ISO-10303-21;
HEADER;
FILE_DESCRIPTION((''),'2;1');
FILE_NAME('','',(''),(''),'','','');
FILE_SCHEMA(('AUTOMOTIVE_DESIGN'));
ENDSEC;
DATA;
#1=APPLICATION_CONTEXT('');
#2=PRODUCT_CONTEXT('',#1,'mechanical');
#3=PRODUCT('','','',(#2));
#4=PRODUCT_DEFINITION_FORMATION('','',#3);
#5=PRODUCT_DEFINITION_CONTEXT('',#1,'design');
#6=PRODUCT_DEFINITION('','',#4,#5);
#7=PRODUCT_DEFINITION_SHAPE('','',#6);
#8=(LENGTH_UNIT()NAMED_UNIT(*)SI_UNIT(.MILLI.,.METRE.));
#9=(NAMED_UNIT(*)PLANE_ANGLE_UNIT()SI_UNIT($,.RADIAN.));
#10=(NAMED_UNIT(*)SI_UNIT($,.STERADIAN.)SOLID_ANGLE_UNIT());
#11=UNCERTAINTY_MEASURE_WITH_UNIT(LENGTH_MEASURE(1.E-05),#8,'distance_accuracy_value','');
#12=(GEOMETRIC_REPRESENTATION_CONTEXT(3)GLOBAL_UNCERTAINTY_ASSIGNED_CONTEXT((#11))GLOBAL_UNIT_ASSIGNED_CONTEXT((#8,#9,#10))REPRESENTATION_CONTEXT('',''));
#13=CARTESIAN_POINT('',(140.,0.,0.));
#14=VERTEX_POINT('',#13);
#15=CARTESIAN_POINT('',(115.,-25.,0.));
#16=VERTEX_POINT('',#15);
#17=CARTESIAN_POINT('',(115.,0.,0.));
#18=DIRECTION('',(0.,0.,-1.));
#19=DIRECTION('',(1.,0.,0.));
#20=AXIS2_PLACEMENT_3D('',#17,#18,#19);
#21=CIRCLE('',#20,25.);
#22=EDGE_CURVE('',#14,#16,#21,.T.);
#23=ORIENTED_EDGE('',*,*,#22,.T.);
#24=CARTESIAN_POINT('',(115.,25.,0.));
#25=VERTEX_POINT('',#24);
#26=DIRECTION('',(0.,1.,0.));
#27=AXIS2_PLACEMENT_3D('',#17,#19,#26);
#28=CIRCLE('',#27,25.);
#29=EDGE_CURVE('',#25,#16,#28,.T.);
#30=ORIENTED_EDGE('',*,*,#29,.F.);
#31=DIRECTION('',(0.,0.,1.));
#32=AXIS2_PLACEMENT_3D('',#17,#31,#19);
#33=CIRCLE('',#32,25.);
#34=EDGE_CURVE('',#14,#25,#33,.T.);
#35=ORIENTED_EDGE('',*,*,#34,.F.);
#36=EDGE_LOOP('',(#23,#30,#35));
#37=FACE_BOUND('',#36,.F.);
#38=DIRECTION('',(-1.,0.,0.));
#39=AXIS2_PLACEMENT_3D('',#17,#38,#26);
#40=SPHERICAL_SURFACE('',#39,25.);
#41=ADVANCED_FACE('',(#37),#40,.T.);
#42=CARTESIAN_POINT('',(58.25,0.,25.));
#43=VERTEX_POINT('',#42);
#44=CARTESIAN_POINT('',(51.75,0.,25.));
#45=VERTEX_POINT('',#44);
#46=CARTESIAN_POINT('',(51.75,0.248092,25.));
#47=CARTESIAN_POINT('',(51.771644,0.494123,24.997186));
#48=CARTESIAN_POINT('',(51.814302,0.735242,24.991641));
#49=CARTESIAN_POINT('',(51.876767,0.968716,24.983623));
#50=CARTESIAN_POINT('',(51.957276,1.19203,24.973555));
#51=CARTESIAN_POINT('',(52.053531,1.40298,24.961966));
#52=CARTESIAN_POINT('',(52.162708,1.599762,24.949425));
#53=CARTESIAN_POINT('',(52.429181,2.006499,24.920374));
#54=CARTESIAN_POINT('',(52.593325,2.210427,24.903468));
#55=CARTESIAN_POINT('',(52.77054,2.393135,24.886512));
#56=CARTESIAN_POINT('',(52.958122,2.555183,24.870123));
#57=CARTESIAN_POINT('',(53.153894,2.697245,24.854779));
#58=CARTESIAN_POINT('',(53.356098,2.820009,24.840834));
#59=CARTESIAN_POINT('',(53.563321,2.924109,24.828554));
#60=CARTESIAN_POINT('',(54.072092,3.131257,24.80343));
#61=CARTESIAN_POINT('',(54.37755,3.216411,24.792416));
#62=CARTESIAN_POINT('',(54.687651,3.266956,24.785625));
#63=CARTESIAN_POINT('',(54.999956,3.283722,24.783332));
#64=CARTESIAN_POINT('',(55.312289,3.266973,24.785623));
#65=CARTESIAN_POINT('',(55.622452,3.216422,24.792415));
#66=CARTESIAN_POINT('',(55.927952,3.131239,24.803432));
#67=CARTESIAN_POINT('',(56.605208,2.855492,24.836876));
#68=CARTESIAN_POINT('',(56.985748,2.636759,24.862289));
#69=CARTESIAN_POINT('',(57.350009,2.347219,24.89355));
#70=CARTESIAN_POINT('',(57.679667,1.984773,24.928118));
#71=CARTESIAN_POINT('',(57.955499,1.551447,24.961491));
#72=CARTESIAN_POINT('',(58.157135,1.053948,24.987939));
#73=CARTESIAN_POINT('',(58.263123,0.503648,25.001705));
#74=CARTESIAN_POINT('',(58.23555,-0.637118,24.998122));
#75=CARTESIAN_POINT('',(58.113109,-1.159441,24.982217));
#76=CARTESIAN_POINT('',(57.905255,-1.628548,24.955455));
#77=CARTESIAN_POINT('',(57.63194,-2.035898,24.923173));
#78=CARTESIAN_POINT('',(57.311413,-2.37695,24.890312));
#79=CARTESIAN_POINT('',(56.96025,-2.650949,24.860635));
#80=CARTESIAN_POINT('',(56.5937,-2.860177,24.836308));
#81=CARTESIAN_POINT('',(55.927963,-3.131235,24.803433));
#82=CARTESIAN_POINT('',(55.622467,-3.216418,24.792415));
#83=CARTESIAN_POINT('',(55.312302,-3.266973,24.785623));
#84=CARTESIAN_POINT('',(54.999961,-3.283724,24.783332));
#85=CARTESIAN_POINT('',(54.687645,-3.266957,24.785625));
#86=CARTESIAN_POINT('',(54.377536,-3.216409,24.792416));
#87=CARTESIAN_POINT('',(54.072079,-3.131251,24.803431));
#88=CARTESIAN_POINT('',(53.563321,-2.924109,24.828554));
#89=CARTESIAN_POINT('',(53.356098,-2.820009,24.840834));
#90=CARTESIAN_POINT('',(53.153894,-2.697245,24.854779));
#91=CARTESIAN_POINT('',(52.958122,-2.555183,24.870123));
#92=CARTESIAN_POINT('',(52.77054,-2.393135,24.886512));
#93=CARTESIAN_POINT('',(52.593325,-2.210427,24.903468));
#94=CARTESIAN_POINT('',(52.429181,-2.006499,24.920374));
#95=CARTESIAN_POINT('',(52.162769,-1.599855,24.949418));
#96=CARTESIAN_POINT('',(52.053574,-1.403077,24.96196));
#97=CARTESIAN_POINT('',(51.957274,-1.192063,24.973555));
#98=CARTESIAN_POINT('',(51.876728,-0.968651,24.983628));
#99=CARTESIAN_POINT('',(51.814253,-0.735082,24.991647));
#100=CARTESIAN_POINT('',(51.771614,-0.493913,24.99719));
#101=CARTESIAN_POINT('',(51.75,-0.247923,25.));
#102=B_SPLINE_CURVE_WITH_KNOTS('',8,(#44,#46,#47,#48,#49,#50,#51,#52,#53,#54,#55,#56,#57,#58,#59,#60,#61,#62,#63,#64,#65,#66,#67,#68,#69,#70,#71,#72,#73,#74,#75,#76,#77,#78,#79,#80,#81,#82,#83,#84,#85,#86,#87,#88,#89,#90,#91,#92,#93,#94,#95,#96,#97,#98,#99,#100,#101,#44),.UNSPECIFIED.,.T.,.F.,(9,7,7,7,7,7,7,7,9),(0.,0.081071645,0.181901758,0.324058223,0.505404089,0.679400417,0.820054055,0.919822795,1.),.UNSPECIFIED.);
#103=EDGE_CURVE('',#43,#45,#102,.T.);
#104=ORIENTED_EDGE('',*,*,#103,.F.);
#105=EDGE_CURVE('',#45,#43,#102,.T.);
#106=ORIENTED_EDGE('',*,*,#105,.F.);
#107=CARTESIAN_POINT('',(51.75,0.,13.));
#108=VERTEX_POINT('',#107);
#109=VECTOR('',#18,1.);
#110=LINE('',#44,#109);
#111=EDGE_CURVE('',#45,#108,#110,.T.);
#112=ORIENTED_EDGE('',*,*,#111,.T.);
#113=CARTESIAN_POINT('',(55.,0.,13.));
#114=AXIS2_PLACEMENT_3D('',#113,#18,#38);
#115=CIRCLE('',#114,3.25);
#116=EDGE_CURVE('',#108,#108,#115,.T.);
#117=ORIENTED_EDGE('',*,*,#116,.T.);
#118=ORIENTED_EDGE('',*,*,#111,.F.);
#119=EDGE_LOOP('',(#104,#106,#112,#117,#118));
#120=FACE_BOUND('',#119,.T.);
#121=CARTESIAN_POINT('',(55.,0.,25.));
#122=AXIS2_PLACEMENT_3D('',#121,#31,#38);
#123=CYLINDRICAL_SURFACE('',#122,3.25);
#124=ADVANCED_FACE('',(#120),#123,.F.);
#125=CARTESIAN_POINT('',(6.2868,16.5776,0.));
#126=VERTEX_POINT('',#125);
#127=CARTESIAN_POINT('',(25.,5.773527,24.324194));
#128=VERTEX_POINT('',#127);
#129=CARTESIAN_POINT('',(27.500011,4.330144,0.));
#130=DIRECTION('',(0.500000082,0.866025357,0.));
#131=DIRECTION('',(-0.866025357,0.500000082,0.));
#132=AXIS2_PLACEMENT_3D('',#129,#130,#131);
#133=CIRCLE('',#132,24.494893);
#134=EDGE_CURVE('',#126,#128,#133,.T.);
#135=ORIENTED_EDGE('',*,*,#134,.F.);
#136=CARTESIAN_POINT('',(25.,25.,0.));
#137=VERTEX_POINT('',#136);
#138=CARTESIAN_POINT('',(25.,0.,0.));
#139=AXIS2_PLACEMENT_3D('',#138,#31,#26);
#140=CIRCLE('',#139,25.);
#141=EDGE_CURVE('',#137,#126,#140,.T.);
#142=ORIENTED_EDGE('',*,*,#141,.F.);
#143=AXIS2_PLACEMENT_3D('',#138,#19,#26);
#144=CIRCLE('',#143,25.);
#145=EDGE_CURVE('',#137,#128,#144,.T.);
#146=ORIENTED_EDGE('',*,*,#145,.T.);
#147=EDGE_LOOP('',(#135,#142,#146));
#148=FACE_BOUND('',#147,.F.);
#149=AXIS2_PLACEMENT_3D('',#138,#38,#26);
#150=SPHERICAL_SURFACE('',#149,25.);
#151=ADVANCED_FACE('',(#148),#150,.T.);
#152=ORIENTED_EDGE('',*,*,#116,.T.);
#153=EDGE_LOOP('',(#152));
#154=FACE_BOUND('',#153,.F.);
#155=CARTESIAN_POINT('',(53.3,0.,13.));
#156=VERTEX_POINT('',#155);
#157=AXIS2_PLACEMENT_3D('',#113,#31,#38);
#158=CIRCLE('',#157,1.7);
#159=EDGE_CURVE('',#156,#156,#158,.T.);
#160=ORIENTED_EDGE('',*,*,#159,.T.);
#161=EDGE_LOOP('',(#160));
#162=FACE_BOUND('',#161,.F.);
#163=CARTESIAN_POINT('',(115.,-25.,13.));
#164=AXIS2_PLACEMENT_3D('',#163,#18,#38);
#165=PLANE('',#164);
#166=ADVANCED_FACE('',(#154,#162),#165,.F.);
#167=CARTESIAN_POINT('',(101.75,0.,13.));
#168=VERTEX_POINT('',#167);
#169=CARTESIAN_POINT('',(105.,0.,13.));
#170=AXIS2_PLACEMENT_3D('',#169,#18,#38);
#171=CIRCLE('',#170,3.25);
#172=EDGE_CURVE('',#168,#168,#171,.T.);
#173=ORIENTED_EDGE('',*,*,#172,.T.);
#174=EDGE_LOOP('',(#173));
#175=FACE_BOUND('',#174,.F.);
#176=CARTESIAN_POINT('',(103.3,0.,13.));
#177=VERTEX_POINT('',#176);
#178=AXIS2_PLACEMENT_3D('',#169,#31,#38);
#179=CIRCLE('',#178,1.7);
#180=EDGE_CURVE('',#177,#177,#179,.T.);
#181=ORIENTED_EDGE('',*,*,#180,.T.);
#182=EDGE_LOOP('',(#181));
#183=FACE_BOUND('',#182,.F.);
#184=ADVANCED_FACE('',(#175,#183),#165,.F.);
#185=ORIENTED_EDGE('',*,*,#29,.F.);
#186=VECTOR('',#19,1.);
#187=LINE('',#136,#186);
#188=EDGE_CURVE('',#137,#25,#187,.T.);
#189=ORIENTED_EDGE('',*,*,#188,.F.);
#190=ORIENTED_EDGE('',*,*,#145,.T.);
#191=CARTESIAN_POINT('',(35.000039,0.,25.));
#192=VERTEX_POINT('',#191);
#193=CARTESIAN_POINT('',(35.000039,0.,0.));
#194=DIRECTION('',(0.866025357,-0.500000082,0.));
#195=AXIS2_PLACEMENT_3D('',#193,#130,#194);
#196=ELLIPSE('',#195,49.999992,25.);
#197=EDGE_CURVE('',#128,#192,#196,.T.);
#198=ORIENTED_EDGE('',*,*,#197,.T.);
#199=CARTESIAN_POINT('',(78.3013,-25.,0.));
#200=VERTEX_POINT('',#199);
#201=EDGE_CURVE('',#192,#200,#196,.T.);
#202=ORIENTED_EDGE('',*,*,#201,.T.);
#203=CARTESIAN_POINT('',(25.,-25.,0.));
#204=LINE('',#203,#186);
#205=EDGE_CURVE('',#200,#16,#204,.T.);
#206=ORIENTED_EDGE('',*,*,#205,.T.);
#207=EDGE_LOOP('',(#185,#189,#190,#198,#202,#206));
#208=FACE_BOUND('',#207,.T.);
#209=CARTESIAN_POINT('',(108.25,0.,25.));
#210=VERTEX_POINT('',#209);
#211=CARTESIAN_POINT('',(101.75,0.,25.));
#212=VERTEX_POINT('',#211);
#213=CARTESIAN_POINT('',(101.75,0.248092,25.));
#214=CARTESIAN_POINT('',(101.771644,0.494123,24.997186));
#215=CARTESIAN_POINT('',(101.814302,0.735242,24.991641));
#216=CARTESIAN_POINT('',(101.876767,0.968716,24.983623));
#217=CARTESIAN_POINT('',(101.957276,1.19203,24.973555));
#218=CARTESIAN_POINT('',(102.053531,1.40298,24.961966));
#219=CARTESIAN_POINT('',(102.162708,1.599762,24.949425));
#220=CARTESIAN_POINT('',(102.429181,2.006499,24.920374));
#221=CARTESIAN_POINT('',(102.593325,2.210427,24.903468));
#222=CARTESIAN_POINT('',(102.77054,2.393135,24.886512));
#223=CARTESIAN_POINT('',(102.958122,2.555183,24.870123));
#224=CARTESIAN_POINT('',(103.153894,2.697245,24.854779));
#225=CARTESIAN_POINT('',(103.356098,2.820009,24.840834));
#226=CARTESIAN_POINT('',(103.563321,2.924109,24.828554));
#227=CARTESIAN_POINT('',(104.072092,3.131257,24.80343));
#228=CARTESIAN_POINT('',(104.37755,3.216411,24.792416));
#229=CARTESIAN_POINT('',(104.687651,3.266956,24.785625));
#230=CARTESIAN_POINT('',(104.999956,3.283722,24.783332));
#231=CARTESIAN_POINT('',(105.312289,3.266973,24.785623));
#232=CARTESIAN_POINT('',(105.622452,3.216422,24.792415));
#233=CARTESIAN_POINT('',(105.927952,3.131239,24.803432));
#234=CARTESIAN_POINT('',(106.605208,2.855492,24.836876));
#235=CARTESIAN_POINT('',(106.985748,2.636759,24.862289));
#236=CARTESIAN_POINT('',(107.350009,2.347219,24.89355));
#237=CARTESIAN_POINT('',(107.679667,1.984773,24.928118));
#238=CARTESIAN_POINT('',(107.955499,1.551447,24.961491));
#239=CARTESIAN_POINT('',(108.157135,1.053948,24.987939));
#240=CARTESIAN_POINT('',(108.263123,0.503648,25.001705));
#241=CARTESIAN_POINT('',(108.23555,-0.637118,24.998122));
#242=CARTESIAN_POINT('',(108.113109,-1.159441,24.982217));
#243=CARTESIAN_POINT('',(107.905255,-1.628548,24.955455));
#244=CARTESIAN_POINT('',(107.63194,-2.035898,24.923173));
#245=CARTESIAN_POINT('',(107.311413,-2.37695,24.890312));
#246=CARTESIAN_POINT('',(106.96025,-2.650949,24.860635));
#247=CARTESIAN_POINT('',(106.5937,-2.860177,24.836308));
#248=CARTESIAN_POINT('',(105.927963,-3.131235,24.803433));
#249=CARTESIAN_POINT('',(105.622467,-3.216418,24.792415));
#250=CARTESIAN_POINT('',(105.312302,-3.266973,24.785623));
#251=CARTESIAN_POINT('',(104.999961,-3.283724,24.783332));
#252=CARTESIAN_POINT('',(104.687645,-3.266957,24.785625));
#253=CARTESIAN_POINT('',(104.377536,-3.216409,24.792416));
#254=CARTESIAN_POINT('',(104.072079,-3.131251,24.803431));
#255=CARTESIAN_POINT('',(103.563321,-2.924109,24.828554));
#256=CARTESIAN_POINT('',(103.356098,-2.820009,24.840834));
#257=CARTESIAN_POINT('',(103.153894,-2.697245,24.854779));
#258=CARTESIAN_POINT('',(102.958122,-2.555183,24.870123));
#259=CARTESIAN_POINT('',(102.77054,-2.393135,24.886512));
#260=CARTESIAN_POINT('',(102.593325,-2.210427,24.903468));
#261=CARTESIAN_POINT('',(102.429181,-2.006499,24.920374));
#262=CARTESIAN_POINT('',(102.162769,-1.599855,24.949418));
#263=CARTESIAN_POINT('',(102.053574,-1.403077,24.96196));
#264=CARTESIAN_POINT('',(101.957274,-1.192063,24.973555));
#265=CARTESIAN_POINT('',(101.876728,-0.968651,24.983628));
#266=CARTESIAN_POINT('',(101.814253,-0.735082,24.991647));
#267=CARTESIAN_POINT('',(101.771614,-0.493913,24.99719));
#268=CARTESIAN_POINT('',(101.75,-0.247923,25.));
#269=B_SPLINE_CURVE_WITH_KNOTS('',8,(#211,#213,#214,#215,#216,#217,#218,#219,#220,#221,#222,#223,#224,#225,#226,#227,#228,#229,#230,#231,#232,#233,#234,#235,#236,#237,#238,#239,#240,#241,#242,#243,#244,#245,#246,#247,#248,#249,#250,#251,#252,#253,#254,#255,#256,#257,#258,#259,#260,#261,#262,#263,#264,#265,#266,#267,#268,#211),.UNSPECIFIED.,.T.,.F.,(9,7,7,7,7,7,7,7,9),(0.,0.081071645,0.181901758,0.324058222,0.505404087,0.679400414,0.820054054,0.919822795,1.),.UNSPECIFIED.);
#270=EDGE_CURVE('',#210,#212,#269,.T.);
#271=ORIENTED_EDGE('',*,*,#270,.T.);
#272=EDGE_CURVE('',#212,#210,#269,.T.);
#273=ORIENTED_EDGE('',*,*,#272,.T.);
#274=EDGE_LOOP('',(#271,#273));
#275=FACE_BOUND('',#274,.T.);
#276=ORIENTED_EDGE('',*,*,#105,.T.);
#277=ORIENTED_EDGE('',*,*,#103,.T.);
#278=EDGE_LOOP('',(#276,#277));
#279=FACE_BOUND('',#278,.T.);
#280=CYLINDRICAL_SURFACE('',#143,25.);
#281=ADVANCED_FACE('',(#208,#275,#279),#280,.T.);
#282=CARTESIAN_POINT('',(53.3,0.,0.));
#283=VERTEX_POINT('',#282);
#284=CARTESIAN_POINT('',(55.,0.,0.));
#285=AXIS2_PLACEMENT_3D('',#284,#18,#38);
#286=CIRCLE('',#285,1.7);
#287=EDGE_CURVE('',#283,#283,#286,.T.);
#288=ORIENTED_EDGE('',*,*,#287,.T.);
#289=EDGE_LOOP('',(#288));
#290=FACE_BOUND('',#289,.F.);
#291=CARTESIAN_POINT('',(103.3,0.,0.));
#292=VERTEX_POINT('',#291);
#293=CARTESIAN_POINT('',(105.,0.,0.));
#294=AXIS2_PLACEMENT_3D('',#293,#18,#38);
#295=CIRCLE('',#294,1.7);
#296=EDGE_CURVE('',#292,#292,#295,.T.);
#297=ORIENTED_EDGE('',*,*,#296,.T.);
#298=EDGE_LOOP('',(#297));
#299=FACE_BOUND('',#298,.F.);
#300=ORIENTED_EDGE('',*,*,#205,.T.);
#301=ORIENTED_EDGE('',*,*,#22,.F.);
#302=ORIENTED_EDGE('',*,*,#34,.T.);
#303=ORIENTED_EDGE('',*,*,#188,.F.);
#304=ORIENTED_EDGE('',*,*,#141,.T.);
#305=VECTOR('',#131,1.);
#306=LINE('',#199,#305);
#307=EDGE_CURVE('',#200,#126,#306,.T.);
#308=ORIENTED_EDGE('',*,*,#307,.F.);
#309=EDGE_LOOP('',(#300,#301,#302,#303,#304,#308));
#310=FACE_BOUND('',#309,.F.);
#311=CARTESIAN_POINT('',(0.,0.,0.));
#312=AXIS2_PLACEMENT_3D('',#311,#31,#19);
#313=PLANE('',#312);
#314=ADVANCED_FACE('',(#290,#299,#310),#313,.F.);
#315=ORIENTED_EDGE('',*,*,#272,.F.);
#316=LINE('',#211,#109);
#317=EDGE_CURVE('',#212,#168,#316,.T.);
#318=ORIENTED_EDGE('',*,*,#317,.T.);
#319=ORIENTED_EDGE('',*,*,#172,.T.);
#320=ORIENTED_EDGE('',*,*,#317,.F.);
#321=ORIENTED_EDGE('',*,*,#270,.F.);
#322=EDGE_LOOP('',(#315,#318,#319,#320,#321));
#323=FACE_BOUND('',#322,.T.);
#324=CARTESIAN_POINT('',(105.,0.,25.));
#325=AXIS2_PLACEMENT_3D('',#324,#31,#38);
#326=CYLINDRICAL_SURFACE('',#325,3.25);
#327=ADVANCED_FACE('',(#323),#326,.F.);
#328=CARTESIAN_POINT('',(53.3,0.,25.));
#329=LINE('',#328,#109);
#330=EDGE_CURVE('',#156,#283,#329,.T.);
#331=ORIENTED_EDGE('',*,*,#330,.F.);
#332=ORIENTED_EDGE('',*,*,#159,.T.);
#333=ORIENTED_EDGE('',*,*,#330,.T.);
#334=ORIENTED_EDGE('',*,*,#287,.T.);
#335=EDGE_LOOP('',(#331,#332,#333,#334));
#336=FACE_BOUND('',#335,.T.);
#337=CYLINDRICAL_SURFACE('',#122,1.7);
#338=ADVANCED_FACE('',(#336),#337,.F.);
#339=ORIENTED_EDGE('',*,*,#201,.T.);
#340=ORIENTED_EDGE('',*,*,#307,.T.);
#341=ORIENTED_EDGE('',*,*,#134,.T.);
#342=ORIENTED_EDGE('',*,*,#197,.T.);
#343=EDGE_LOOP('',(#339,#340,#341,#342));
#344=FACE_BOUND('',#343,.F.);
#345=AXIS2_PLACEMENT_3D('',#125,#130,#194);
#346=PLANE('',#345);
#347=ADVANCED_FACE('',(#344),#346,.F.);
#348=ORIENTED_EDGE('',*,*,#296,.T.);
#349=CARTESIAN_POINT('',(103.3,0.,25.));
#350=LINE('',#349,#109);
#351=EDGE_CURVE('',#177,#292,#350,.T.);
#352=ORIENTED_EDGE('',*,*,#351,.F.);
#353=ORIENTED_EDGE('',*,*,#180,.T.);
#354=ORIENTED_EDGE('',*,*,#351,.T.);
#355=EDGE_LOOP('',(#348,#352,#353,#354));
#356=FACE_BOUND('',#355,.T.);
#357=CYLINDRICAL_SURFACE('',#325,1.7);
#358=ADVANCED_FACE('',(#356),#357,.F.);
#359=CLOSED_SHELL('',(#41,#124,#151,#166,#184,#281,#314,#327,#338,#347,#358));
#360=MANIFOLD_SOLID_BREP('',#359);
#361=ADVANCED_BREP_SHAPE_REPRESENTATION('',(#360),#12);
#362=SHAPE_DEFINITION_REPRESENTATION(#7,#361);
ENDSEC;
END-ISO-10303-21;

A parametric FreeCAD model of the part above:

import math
import FreeCAD as App
import Part
import Sketcher
from FreeCAD import Vector
Q = App.Units.Quantity


def add_polygon(sketch, points):
    """Adds a closed chain of lines whose ends are joined by coincident constraints."""
    first, n = sketch.GeometryCount, len(points)
    for a, b in zip(points, points[1:] + points[:1]):
        sketch.addGeometry(Part.LineSegment(App.Vector(*a, 0), App.Vector(*b, 0)), False)
    for i in range(n):
        sketch.addConstraint(Sketcher.Constraint("Coincident", first + i, 2, first + (i + 1) % n, 1))

doc = App.newDocument("Part")
body = doc.addObject("PartDesign::Body", "Body")

# Sketch on XY plane
sketch1 = body.newObject("Sketcher::SketchObject", "Sketch")
sketch1.AttachmentSupport = (doc.getObject("XY_Plane"), [""])
sketch1.MapMode = "FlatFace"
sketch1.addGeometry([
    Part.LineSegment(Vector(115, 25, 0), Vector(25, 25, 0)),
    Part.ArcOfCircle(Part.Circle(Vector(25, 0, 0), Vector(0, 0, 1), 25), math.radians(90), math.radians(180)),
    Part.LineSegment(Vector(0, 0, 0), Vector(140, 0, 0)),
    Part.ArcOfCircle(Part.Circle(Vector(115, 0, 0), Vector(0, 0, 1), 25), math.radians(0), math.radians(90)),
], False)
sketch1.addConstraint([
    Sketcher.Constraint("Tangent", 0, 2, 1, 1),
    Sketcher.Constraint("Coincident", 1, 2, 2, 1),
    Sketcher.Constraint("Coincident", 2, 2, 3, 1),
    Sketcher.Constraint("Tangent", 3, 2, 0, 1),
    Sketcher.Constraint("Horizontal", 0),
    Sketcher.Constraint("Horizontal", 2),
    Sketcher.Constraint("Coincident", 1, 2, -1, 1),
    Sketcher.Constraint("Equal", 1, 3),
    Sketcher.Constraint("PointOnObject", 1, 3, -1),
    Sketcher.Constraint("Radius", 1, Q("25 mm")),
    Sketcher.Constraint("DistanceX", 0, 2, 0, 1, Q("90 mm")),
])
revolution = body.newObject("PartDesign::Revolution", "Revolution")
revolution.Profile = sketch1
revolution.ReferenceAxis = (sketch1, ["H_Axis"])
revolution.Angle = 180

# Sketch on XY plane
sketch2 = body.newObject("Sketcher::SketchObject", "Sketch001")
sketch2.AttachmentSupport = (doc.getObject("XY_Plane"), [""])
sketch2.MapMode = "FlatFace"
add_polygon(sketch2, [(63, -51), (0, -14), (0, 17), (6, 17), (78, -25)])  # lines 0-4
sketch2.addConstraint([
    Sketcher.Constraint("Vertical", 1),
    Sketcher.Constraint("Horizontal", 2),
    Sketcher.Constraint("PointOnObject", 0, 2, -2),
    Sketcher.Constraint("Parallel", 0, 3),
    Sketcher.Constraint("Perpendicular", 3, 4),
    Sketcher.Constraint("Angle", 3, Q("-30 deg")),
    Sketcher.Constraint("Distance", 4, Q("30 mm")),
    Sketcher.Constraint("DistanceY", 3, 2, -1, 1, Q("25 mm")),
    Sketcher.Constraint("Distance", 0, Q("73.094 mm")),
    Sketcher.Constraint("DistanceX", 2, 1, 2, 2, Q("6.2868 mm")),
])
pocket1 = body.newObject("PartDesign::Pocket", "Pocket")
pocket1.Profile = sketch2
pocket1.Length = 25
pocket1.Reversed = True

# Sketch on XY plane
sketch3 = body.newObject("Sketcher::SketchObject", "Sketch002")
sketch3.AttachmentSupport = (doc.getObject("XY_Plane"), [""])
sketch3.MapMode = "FlatFace"
sketch3.AttachmentOffset = App.Placement(Vector(0, 0, 25), App.Rotation())
sketch3.addGeometry([
    Part.Circle(Vector(105, 0, 0), Vector(0, 0, 1), 1.7),
    Part.Circle(Vector(55, 0, 0), Vector(0, 0, 1), 1.7),
], False)
sketch3.addConstraint([
    Sketcher.Constraint("Equal", 0, 1),
    Sketcher.Constraint("PointOnObject", 0, 3, -1),
    Sketcher.Constraint("PointOnObject", 1, 3, -1),
    Sketcher.Constraint("Diameter", 0, Q("3.4 mm")),
    Sketcher.Constraint("DistanceX", 1, 3, 0, 3, Q("50 mm")),
    Sketcher.Constraint("DistanceX", -1, 1, 0, 3, Q("105 mm")),
])
pocket2 = body.newObject("PartDesign::Pocket", "Pocket001")
pocket2.Profile = sketch3
pocket2.Length = 25

# Sketch on XY plane
sketch4 = body.newObject("Sketcher::SketchObject", "Sketch003")
sketch4.AttachmentSupport = (doc.getObject("XY_Plane"), [""])
sketch4.MapMode = "FlatFace"
sketch4.AttachmentOffset = App.Placement(Vector(0, 0, 25), App.Rotation())
sketch4.addGeometry([
    Part.Circle(Vector(105, 0, 0), Vector(0, 0, 1), 3.2),
    Part.Circle(Vector(55, 0, 0), Vector(0, 0, 1), 3.2),
], False)
sketch4.addConstraint([
    Sketcher.Constraint("Equal", 0, 1),
    Sketcher.Constraint("PointOnObject", 0, 3, -1),
    Sketcher.Constraint("PointOnObject", 1, 3, -1),
    Sketcher.Constraint("Diameter", 0, Q("6.5 mm")),
    Sketcher.Constraint("DistanceX", -1, 1, 0, 3, Q("105 mm")),
    Sketcher.Constraint("DistanceX", -1, 1, 1, 3, Q("55 mm")),
])
pocket3 = body.newObject("PartDesign::Pocket", "Pocket002")
pocket3.Profile = sketch4
pocket3.Length = 12

doc.recompute()
